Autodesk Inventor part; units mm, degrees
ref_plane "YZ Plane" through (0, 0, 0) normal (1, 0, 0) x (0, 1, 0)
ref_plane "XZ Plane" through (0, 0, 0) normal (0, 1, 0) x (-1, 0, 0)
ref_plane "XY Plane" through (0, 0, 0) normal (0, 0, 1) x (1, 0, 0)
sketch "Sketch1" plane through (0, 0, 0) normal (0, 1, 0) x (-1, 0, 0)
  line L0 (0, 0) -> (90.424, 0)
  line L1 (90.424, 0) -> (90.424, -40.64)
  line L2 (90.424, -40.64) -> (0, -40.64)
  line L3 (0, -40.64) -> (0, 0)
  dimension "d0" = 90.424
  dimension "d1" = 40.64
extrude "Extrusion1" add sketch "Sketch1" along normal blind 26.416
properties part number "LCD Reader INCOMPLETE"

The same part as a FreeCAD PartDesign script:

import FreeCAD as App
import Part
import Sketcher

V = App.Vector
Q = App.Units.Quantity

doc = App.newDocument("Part")
body = doc.addObject("PartDesign::Body", "Body")

sketch1 = body.newObject("Sketcher::SketchObject", "Sketch")
sketch1.AttachmentSupport = (doc.getObject("XZ_Plane"), [""])
sketch1.MapMode = "FlatFace"
sketch1.addGeometry([
    Part.LineSegment(V(-90, 0, 0), V(0, 0, 0)),
    Part.LineSegment(V(0, 0, 0), V(0, -41, 0)),
    Part.LineSegment(V(0, -41, 0), V(-90, -41, 0)),
    Part.LineSegment(V(-90, -41, 0), V(-90, 0, 0)),
], False)
sketch1.addConstraint([
    Sketcher.Constraint("Coincident", 0, 2, 1, 1),
    Sketcher.Constraint("Coincident", 1, 2, 2, 1),
    Sketcher.Constraint("Coincident", 2, 2, 3, 1),
    Sketcher.Constraint("Coincident", 3, 2, 0, 1),
    Sketcher.Constraint("Horizontal", 0),
    Sketcher.Constraint("Vertical", 1),
    Sketcher.Constraint("Horizontal", 2),
    Sketcher.Constraint("Vertical", 3),
    Sketcher.Constraint("Coincident", 0, 2, -1, 1),
    Sketcher.Constraint("DistanceY", 1, 2, 1, 1, Q("1.6 in")),
    Sketcher.Constraint("DistanceX", 0, 1, 0, 2, Q("3.56 in")),
])
pad1 = body.newObject("PartDesign::Pad", "Pad")
pad1.Profile = sketch1
pad1.Length = Q("1.04 in")
pad1.Reversed = True

doc.recompute()
